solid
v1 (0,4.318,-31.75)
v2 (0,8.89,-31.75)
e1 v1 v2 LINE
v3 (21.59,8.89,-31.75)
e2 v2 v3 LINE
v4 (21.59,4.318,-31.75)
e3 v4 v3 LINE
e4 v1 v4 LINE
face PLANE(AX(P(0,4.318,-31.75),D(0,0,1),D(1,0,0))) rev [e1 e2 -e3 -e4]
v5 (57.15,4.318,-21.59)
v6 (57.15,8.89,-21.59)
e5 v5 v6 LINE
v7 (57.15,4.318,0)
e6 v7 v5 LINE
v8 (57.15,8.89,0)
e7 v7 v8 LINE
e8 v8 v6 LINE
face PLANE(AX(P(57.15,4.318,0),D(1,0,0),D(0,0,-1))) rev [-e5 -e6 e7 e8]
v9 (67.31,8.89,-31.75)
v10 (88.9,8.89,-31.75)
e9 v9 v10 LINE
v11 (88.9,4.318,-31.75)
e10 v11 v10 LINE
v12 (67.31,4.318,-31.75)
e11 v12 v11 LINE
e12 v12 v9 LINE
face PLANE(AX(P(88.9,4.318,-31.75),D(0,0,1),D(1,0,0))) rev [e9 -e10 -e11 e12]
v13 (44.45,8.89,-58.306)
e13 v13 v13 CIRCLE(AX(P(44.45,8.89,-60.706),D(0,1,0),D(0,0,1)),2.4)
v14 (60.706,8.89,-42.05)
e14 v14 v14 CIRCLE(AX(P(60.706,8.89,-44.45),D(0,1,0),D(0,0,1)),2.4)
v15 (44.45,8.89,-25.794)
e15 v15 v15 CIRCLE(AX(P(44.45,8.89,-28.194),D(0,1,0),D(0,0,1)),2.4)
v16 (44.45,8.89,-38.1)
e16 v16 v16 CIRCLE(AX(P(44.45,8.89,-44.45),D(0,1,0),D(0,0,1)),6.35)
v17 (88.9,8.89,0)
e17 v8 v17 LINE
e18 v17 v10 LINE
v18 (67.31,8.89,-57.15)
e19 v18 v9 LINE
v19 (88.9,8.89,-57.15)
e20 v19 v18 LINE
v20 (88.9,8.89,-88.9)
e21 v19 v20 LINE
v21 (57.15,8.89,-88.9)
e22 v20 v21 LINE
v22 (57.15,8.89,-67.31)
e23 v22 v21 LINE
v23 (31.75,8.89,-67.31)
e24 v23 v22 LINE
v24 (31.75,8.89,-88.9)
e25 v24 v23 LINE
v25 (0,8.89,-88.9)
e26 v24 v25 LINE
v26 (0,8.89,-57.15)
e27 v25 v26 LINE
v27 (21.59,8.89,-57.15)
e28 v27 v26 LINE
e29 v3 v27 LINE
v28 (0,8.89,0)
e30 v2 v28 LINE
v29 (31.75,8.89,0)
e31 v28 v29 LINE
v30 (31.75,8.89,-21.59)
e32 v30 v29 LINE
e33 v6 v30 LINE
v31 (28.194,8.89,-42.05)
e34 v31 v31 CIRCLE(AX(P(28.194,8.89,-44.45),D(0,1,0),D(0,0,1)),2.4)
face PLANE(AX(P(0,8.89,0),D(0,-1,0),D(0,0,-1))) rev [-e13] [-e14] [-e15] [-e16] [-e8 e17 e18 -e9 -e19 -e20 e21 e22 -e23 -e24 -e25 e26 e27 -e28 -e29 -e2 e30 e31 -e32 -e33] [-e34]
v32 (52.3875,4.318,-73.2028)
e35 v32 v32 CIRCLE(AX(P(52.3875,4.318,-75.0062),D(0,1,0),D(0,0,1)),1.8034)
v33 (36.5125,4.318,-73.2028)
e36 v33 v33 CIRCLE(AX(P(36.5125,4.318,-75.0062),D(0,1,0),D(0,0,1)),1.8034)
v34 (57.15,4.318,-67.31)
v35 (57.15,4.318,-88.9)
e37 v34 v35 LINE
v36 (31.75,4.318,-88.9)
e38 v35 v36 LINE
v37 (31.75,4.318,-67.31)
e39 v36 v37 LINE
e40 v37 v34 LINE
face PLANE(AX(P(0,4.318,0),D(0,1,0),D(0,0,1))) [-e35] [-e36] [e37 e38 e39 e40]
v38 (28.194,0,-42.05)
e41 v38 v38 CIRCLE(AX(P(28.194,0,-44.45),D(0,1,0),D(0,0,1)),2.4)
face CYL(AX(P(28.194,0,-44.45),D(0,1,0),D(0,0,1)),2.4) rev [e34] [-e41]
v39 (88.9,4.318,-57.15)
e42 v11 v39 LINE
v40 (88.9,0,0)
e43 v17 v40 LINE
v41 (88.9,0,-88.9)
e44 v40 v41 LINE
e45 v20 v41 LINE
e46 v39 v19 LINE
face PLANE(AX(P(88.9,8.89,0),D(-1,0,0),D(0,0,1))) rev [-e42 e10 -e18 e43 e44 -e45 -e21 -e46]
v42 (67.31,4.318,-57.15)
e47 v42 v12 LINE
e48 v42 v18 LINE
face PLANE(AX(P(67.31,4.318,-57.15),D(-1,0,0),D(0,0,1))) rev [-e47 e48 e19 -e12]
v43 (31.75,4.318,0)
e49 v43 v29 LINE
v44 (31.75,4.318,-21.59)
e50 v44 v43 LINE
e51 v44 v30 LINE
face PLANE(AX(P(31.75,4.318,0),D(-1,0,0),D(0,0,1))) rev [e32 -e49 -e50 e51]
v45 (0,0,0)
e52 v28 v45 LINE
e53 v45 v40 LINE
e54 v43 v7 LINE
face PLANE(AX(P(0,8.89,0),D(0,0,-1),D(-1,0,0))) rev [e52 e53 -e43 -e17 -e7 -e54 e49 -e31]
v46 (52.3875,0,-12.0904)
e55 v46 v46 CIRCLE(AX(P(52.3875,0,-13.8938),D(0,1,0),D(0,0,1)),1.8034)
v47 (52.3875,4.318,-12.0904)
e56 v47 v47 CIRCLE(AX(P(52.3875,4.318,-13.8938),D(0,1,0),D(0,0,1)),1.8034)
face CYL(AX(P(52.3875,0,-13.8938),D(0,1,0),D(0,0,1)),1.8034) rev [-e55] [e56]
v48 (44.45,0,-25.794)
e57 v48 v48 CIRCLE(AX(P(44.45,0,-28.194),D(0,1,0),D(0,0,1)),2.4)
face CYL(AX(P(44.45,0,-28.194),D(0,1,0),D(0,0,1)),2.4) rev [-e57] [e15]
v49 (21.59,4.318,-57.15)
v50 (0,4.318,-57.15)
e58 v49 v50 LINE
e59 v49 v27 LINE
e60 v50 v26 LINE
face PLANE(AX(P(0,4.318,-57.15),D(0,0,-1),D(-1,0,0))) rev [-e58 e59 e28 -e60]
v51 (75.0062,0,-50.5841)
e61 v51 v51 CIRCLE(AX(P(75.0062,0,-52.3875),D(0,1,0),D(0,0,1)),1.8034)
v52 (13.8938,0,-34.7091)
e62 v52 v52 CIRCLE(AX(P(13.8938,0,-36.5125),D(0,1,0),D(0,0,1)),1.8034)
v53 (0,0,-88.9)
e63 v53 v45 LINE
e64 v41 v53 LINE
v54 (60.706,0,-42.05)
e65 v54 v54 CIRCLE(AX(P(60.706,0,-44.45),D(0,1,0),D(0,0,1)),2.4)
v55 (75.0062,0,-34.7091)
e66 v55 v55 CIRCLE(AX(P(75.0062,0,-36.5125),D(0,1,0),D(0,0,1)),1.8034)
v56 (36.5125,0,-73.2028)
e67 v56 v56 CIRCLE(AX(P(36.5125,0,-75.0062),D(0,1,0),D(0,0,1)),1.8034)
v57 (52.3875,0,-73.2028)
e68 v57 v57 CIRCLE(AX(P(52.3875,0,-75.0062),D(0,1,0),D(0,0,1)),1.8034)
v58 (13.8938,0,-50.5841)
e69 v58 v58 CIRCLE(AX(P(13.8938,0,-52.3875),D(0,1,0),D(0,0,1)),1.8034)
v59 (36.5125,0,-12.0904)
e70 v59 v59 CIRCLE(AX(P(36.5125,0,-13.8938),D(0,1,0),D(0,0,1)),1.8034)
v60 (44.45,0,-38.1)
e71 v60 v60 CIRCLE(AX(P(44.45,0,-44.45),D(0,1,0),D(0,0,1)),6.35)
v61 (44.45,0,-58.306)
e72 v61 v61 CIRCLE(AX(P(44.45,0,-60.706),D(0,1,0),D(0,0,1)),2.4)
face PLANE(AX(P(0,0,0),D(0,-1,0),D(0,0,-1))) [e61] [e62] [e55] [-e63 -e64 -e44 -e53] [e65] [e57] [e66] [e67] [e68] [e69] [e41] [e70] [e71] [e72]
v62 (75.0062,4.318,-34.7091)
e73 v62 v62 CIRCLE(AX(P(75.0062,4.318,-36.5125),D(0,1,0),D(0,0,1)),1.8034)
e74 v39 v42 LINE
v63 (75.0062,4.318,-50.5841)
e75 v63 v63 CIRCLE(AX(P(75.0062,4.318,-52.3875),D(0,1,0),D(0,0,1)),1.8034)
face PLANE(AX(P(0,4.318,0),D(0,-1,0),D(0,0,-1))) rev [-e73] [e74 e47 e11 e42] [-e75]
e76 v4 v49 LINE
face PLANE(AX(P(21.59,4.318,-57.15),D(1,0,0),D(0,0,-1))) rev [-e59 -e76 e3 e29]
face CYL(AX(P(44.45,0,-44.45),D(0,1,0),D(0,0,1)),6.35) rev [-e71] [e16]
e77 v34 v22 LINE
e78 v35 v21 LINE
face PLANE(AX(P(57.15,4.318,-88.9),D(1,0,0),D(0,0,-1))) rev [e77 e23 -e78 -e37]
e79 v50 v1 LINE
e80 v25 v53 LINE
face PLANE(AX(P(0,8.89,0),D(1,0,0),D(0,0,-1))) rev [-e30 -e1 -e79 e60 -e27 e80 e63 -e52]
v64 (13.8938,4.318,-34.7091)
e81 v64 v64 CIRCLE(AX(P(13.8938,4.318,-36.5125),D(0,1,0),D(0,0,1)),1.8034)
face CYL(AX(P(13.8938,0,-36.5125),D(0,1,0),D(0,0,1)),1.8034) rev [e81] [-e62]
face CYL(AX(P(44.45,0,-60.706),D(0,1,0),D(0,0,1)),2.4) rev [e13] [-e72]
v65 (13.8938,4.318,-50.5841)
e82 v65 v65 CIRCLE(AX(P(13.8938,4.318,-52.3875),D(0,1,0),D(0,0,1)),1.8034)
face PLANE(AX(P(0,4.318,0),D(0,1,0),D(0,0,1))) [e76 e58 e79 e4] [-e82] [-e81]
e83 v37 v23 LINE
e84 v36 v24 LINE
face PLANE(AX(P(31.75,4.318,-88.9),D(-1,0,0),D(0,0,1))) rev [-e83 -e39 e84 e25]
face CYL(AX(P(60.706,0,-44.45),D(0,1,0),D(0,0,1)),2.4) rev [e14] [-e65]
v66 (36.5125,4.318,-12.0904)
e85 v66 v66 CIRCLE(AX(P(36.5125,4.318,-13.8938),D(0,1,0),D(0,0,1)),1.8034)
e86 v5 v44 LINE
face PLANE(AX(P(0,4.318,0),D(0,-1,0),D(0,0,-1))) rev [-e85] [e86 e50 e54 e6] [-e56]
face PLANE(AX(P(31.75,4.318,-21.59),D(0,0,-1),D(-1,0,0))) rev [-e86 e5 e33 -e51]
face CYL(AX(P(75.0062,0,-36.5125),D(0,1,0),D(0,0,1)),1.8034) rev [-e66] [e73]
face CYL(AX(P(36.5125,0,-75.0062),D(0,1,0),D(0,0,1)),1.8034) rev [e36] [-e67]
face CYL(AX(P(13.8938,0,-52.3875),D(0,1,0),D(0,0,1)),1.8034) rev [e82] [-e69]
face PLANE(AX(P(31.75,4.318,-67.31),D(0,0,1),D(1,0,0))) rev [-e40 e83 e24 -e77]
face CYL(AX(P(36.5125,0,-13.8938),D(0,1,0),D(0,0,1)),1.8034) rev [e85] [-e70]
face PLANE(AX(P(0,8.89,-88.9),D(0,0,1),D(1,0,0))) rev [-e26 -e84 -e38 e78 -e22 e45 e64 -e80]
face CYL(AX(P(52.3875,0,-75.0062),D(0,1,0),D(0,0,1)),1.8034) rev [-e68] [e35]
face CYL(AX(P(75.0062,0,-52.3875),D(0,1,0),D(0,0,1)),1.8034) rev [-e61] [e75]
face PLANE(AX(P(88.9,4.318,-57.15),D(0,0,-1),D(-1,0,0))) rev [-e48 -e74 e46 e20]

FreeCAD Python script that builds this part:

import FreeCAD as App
import Part
import Sketcher

V = App.Vector
Q = App.Units.Quantity


def add_polygon(sketch, points):
    """Adds a closed chain of lines whose ends are joined by coincident constraints."""
    first, n = sketch.GeometryCount, len(points)
    for a, b in zip(points, points[1:] + points[:1]):
        sketch.addGeometry(Part.LineSegment(App.Vector(*a, 0), App.Vector(*b, 0)), False)
    for i in range(n):
        sketch.addConstraint(Sketcher.Constraint("Coincident", first + i, 2, first + (i + 1) % n, 1))

doc = App.newDocument("Part")
body = doc.addObject("PartDesign::Body", "Body")

sketch1 = body.newObject("Sketcher::SketchObject", "Sketch")
sketch1.AttachmentSupport = (doc.getObject("XZ_Plane"), [""])
sketch1.MapMode = "FlatFace"
add_polygon(sketch1, [(0, -89), (0, 0), (89, 0), (89, -89)])
sketch1.addConstraint(Sketcher.Constraint("Vertical", 0))
sketch1.addConstraint(Sketcher.Constraint("Horizontal", 1))
sketch1.addConstraint(Sketcher.Constraint("Vertical", 2))
sketch1.addConstraint(Sketcher.Constraint("Horizontal", 3))
sketch1.addConstraint(Sketcher.Constraint("Coincident", 0, 2, -1, 1))
sketch1.addConstraint(Sketcher.Constraint("Equal", 3, 0))
sketch1.addConstraint(Sketcher.Constraint("DistanceX", 1, 1, 1, 2, Q("3.5 in")))
pad1 = body.newObject("PartDesign::Pad", "Pad")
pad1.Profile = sketch1
pad1.Length = Q("0.35 in")
pad1.Reversed = True

sketch2 = body.newObject("Sketcher::SketchObject", "Sketch001")
sketch2.AttachmentSupport = (doc.getObject("XZ_Plane"), [""])
sketch2.MapMode = "FlatFace"
sketch2.AttachmentOffset = App.Placement(V(0, 0, -0.35 * 25.4), App.Rotation())
add_polygon(sketch2, [(32, -89), (32, -67), (57, -67), (57, -89)])
add_polygon(sketch2, [(0, -57), (0, -32), (22, -32), (22, -57)])
add_polygon(sketch2, [(32, -22), (32, 0), (57, 0), (57, -22)])
add_polygon(sketch2, [(67, -57), (67, -32), (89, -32), (89, -57)])
sketch2.addConstraint(Sketcher.Constraint("Vertical", 0))
sketch2.addConstraint(Sketcher.Constraint("Horizontal", 1))
sketch2.addConstraint(Sketcher.Constraint("Vertical", 2))
sketch2.addConstraint(Sketcher.Constraint("Horizontal", 3))
sketch2.addConstraint(Sketcher.Constraint("Vertical", 4))
sketch2.addConstraint(Sketcher.Constraint("Horizontal", 5))
sketch2.addConstraint(Sketcher.Constraint("Vertical", 6))
sketch2.addConstraint(Sketcher.Constraint("Horizontal", 7))
sketch2.addConstraint(Sketcher.Constraint("Vertical", 8))
sketch2.addConstraint(Sketcher.Constraint("Horizontal", 9))
sketch2.addConstraint(Sketcher.Constraint("Vertical", 10))
sketch2.addConstraint(Sketcher.Constraint("Horizontal", 11))
sketch2.addConstraint(Sketcher.Constraint("Vertical", 12))
sketch2.addConstraint(Sketcher.Constraint("Horizontal", 13))
sketch2.addConstraint(Sketcher.Constraint("Vertical", 14))
sketch2.addConstraint(Sketcher.Constraint("Horizontal", 15))
sketch2.addConstraint(Sketcher.Constraint("PointOnObject", 4, 2, -2))
sketch2.addConstraint(Sketcher.Constraint("PointOnObject", 8, 2, -1))
sketch2.addConstraint(Sketcher.Constraint("Horizontal", 5, 2, 12, 2))
sketch2.addConstraint(Sketcher.Constraint("Horizontal", 7, 2, 14, 2))
sketch2.addConstraint(Sketcher.Constraint("Vertical", 3, 2, 8, 2))
sketch2.addConstraint(Sketcher.Constraint("Vertical", 2, 2, 9, 2))
sketch2.addConstraint(Sketcher.Constraint("Equal", 7, 13))
sketch2.addConstraint(Sketcher.Constraint("Equal", 15, 0))
sketch2.addConstraint(Sketcher.Constraint("Equal", 11, 4))
sketch2.addConstraint(Sketcher.Constraint("Equal", 2, 8))
sketch2.addConstraint(Sketcher.Constraint("DistanceX", 1, 1, 1, 2, Q("1 in")))
sketch2.addConstraint(Sketcher.Constraint("DistanceX", 5, 1, 5, 2, Q("0.85 in")))
sketch2.addConstraint(Sketcher.Constraint("DistanceY", 2, 2, -1, 1, Q("3.5 in")))
sketch2.addConstraint(Sketcher.Constraint("DistanceX", -1, 1, 13, 2, Q("3.5 in")))
sketch2.addConstraint(Sketcher.Constraint("DistanceY", 0, 2, 4, 2, Q("1.4 in")))
sketch2.addConstraint(Sketcher.Constraint("DistanceX", 5, 2, 0, 2, Q("0.4 in")))
pocket1 = body.newObject("PartDesign::Pocket", "Pocket")
pocket1.Profile = sketch2
pocket1.Length = Q("0.18 in")
pocket1.Reversed = True

sketch3 = body.newObject("Sketcher::SketchObject", "Sketch002")
sketch3.AttachmentSupport = (doc.getObject("XZ_Plane"), [""])
sketch3.MapMode = "FlatFace"
sketch3.AttachmentOffset = App.Placement(V(0, 0, -0.35 * 25.4), App.Rotation())
sketch3.addGeometry(Part.Circle(V(28.2, -44.5, 0), V(0, 0, 1), 2.4), False)
sketch3.addGeometry(Part.Circle(V(44.5, -60.7, 0), V(0, 0, 1), 2.4), False)
sketch3.addGeometry(Part.Circle(V(60.7, -44.5, 0), V(0, 0, 1), 2.4), False)
sketch3.addGeometry(Part.Circle(V(44.5, -28.2, 0), V(0, 0, 1), 2.4), False)
sketch3.addConstraint(Sketcher.Constraint("Equal", 0, 1))
sketch3.addConstraint(Sketcher.Constraint("Equal", 1, 2))
sketch3.addConstraint(Sketcher.Constraint("Equal", 2, 3))
sketch3.addConstraint(Sketcher.Constraint("Horizontal", 0, 3, 2, 3))
sketch3.addConstraint(Sketcher.Constraint("Vertical", 1, 3, 3, 3))
sketch3.addConstraint(Sketcher.Constraint("Diameter", 0, 4.8))
sketch3.addConstraint(Sketcher.Constraint("DistanceX", -1, 1, 0, 3, Q("1.11 in")))
sketch3.addConstraint(Sketcher.Constraint("DistanceY", 0, 3, -1, 1, Q("1.75 in")))
sketch3.addConstraint(Sketcher.Constraint("DistanceX", -1, 1, 1, 3, Q("1.75 in")))
sketch3.addConstraint(Sketcher.Constraint("DistanceY", 1, 3, -1, 1, Q("2.39 in")))
sketch3.addConstraint(Sketcher.Constraint("DistanceX", -1, 1, 2, 3, Q("2.39 in")))
sketch3.addConstraint(Sketcher.Constraint("DistanceY", 3, 3, -1, 1, Q("1.11 in")))
pocket2 = body.newObject("PartDesign::Pocket", "Pocket001")
pocket2.Profile = sketch3
pocket2.Type = "ThroughAll"
pocket2.Reversed = True

sketch4 = body.newObject("Sketcher::SketchObject", "Sketch003")
sketch4.AttachmentSupport = (doc.getObject("XZ_Plane"), [""])
sketch4.MapMode = "FlatFace"
sketch4.AttachmentOffset = App.Placement(V(0, 0, -0.17 * 25.4), App.Rotation())
sketch4.addGeometry(Part.Circle(V(75, -52.4, 0), V(0, 0, 1), 1.8), False)
sketch4.addGeometry(Part.Circle(V(75, -36.5, 0), V(0, 0, 1), 1.8), False)
sketch4.addGeometry(Part.Circle(V(52.4, -75, 0), V(0, 0, 1), 1.8), False)
sketch4.addGeometry(Part.Circle(V(36.5, -75, 0), V(0, 0, 1), 1.8), False)
sketch4.addGeometry(Part.Circle(V(13.9, -52.4, 0), V(0, 0, 1), 1.8), False)
sketch4.addGeometry(Part.Circle(V(13.9, -36.5, 0), V(0, 0, 1), 1.8), False)
sketch4.addGeometry(Part.Circle(V(36.5, -13.9, 0), V(0, 0, 1), 1.8), False)
sketch4.addGeometry(Part.Circle(V(52.4, -13.9, 0), V(0, 0, 1), 1.8), False)
sketch4.addConstraint(Sketcher.Constraint("Equal", 0, 1))
sketch4.addConstraint(Sketcher.Constraint("Equal", 1, 2))
sketch4.addConstraint(Sketcher.Constraint("Equal", 2, 3))
sketch4.addConstraint(Sketcher.Constraint("Equal", 3, 4))
sketch4.addConstraint(Sketcher.Constraint("Equal", 4, 5))
sketch4.addConstraint(Sketcher.Constraint("Equal", 5, 6))
sketch4.addConstraint(Sketcher.Constraint("Equal", 6, 7))
sketch4.addConstraint(Sketcher.Constraint("Horizontal", 2, 3, 3, 3))
sketch4.addConstraint(Sketcher.Constraint("Horizontal", 0, 3, 4, 3))
sketch4.addConstraint(Sketcher.Constraint("Horizontal", 1, 3, 5, 3))
sketch4.addConstraint(Sketcher.Constraint("Horizontal", 6, 3, 7, 3))
sketch4.addConstraint(Sketcher.Constraint("Vertical", 0, 3, 1, 3))
sketch4.addConstraint(Sketcher.Constraint("Vertical", 4, 3, 5, 3))
sketch4.addConstraint(Sketcher.Constraint("Vertical", 3, 3, 6, 3))
sketch4.addConstraint(Sketcher.Constraint("Vertical", 2, 3, 7, 3))
sketch4.addConstraint(Sketcher.Constraint("Diameter", 0, Q("0.142 in")))
sketch4.addConstraint(Sketcher.Constraint("DistanceX", -1, 1, 0, 3, Q("2.953 in")))
sketch4.addConstraint(Sketcher.Constraint("DistanceY", 0, 3, -1, 1, Q("2.0625 in")))
sketch4.addConstraint(Sketcher.Constraint("DistanceY", 1, 3, -1, 1, Q("1.4375 in")))
sketch4.addConstraint(Sketcher.Constraint("DistanceX", -1, 1, 2, 3, Q("2.0625 in")))
sketch4.addConstraint(Sketcher.Constraint("DistanceY", 2, 3, -1, 1, Q("2.953 in")))
sketch4.addConstraint(Sketcher.Constraint("DistanceX", -1, 1, 3, 3, Q("1.4375 in")))
sketch4.addConstraint(Sketcher.Constraint("DistanceX", -1, 1, 4, 3, Q("0.547 in")))
sketch4.addConstraint(Sketcher.Constraint("DistanceY", 6, 3, -1, 1, Q("0.547 in")))
pocket3 = body.newObject("PartDesign::Pocket", "Pocket002")
pocket3.Profile = sketch4
pocket3.Type = "ThroughAll"
pocket3.Reversed = True

sketch5 = body.newObject("Sketcher::SketchObject", "Sketch004")
sketch5.AttachmentSupport = (doc.getObject("XZ_Plane"), [""])
sketch5.MapMode = "FlatFace"
sketch5.AttachmentOffset = App.Placement(V(0, 0, -0.35 * 25.4), App.Rotation())
sketch5.addGeometry(Part.Circle(V(44, -44, 0), V(0, 0, 1), 6), False)
sketch5.addConstraint(Sketcher.Constraint("Diameter", 0, Q("0.5 in")))
sketch5.addConstraint(Sketcher.Constraint("DistanceX", -1, 1, 0, 3, Q("1.75 in")))
sketch5.addConstraint(Sketcher.Constraint("DistanceY", 0, 3, -1, 1, Q("1.75 in")))
pocket4 = body.newObject("PartDesign::Pocket", "Pocket003")
pocket4.Profile = sketch5
pocket4.Type = "ThroughAll"
pocket4.Reversed = True

doc.recompute()
